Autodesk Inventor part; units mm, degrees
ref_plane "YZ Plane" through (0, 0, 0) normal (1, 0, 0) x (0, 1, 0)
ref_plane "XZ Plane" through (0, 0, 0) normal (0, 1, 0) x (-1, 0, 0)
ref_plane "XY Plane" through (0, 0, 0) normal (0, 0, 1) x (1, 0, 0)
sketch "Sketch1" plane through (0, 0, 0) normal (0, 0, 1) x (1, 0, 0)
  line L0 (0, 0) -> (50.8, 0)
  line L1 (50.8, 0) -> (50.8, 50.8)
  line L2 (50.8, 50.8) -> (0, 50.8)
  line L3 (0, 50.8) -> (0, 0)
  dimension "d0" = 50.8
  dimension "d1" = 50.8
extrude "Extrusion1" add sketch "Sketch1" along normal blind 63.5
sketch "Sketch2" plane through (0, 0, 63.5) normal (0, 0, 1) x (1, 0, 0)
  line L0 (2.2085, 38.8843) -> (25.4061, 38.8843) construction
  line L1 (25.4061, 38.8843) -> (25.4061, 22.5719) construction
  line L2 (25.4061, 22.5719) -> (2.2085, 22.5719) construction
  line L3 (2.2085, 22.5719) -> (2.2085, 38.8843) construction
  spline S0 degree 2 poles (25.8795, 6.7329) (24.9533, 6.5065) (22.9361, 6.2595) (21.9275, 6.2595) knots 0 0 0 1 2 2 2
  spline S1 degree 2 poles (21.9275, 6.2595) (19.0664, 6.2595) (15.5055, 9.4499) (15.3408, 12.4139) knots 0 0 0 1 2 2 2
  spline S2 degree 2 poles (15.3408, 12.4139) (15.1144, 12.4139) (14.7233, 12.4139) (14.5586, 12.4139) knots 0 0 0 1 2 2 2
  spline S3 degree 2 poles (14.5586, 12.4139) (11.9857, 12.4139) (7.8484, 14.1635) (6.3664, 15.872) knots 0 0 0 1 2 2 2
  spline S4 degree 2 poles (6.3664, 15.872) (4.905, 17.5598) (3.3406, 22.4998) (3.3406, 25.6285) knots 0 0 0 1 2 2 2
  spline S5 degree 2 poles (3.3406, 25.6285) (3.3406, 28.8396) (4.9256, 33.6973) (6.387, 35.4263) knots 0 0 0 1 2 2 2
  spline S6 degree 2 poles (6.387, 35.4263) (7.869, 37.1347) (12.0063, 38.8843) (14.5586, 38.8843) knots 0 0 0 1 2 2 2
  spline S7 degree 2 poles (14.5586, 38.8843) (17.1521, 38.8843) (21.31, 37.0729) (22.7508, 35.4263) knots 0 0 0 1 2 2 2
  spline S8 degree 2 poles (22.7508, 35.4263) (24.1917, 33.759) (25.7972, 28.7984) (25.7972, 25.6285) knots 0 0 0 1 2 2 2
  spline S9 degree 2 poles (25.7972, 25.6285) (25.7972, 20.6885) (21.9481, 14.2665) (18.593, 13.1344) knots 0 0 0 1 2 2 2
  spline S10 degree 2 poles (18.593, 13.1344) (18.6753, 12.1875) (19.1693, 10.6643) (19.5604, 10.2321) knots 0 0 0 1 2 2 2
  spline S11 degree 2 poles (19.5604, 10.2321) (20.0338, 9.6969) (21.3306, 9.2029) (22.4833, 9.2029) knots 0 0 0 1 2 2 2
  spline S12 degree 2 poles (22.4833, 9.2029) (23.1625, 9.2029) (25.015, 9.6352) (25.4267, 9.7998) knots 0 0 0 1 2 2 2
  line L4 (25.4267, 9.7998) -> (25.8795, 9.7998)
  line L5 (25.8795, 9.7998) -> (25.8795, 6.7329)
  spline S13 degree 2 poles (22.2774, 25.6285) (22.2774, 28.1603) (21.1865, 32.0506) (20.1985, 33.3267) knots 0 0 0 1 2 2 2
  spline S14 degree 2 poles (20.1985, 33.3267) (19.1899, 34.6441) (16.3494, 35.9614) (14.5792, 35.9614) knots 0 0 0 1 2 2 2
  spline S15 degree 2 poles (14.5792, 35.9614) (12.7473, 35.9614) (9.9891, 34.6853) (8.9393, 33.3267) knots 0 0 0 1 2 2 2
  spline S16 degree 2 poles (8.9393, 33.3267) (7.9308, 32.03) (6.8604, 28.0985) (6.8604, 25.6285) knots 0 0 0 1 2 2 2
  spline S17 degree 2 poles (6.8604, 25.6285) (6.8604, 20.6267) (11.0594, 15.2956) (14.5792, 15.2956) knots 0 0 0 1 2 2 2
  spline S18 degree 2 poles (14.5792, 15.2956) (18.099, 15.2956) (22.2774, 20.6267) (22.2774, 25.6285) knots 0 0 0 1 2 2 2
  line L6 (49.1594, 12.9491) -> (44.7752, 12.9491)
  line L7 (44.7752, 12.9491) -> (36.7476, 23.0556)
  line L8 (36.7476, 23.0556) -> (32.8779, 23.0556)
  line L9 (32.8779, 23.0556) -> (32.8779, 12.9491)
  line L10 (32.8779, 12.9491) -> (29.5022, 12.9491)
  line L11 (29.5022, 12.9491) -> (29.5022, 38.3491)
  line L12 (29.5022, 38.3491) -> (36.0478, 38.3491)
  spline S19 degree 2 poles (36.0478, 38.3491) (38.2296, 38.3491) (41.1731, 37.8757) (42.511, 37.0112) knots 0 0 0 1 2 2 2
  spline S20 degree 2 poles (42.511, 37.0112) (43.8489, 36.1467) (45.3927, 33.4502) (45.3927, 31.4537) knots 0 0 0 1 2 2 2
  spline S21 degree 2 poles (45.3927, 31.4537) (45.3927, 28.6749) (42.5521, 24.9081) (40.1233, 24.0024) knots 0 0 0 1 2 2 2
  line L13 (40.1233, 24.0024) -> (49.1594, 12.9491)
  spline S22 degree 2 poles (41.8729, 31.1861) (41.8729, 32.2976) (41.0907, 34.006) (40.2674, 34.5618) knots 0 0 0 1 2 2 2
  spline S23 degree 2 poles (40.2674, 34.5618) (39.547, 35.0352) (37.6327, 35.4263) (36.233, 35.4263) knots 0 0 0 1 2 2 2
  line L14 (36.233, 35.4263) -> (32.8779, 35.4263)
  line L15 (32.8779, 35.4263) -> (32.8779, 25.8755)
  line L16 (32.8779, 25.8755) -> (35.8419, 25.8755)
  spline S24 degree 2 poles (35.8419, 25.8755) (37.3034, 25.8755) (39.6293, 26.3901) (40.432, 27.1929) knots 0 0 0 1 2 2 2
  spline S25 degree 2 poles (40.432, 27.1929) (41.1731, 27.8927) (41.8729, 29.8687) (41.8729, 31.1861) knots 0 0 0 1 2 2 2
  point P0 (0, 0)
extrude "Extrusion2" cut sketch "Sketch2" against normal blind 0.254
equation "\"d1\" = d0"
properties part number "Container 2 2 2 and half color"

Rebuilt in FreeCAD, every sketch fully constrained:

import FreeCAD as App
import Part
import Sketcher
Q = App.Units.Quantity


def add_polygon(sketch, points):
    """Adds a closed chain of lines whose ends are joined by coincident constraints."""
    first, n = sketch.GeometryCount, len(points)
    for a, b in zip(points, points[1:] + points[:1]):
        sketch.addGeometry(Part.LineSegment(App.Vector(*a, 0), App.Vector(*b, 0)), False)
    for i in range(n):
        sketch.addConstraint(Sketcher.Constraint("Coincident", first + i, 2, first + (i + 1) % n, 1))

doc = App.newDocument("Part")
body = doc.addObject("PartDesign::Body", "Body")

sketch1 = doc.addObject("Sketcher::SketchObject", "Sketch")
body.addObject(sketch1)
sketch1.AttachmentSupport = (doc.XY_Plane, [""])
sketch1.MapMode = "FlatFace"
add_polygon(sketch1, [(0, 50.8), (0, 0), (50.8, 0), (50.8, 50.8)])
sketch1.addConstraint(Sketcher.Constraint("Vertical", 0))
sketch1.addConstraint(Sketcher.Constraint("Horizontal", 1))
sketch1.addConstraint(Sketcher.Constraint("Vertical", 2))
sketch1.addConstraint(Sketcher.Constraint("Horizontal", 3))
sketch1.addConstraint(Sketcher.Constraint("Coincident", 0, 2, -1, 1))
sketch1.addConstraint(Sketcher.Constraint("Equal", 3, 0))
sketch1.addConstraint(Sketcher.Constraint("DistanceX", 1, 1, 1, 2, Q("2 in")))
pad1 = doc.addObject("PartDesign::Pad", "Pad")
body.addObject(pad1)
pad1.Profile = sketch1
pad1.Length = Q("2.5 in")

sketch2 = doc.addObject("Sketcher::SketchObject", "Sketch001")
body.addObject(sketch2)
sketch2.AttachmentSupport = (doc.XY_Plane, [""])
sketch2.MapMode = "FlatFace"
sketch2.AttachmentOffset = App.Placement(App.Vector(0, 0, 2.5 * 25.4), App.Rotation())
sketch2.addGeometry(Part.BSplineCurve([App.Vector(25.8795, 6.7329, 0), App.Vector(24.9533, 6.5065, 0), App.Vector(22.9361, 6.2595, 0), App.Vector(21.9275, 6.2595, 0)], [3, 1, 3], [0, 1, 2], False, 2, [1, 1, 1, 1], False), False)
sketch2.addGeometry(Part.LineSegment(App.Vector(25.8795, 6.7329, 0), App.Vector(25.8795, 9.7998, 0)), False)
sketch2.addGeometry(Part.LineSegment(App.Vector(25.8795, 9.7998, 0), App.Vector(25.4267, 9.7998, 0)), False)
sketch2.addGeometry(Part.BSplineCurve([App.Vector(22.4833, 9.2029, 0), App.Vector(23.1625, 9.2029, 0), App.Vector(25.015, 9.6352, 0), App.Vector(25.4267, 9.7998, 0)], [3, 1, 3], [0, 1, 2], False, 2, [1, 1, 1, 1], False), False)
sketch2.addGeometry(Part.BSplineCurve([App.Vector(19.5604, 10.2321, 0), App.Vector(20.0338, 9.6969, 0), App.Vector(21.3306, 9.2029, 0), App.Vector(22.4833, 9.2029, 0)], [3, 1, 3], [0, 1, 2], False, 2, [1, 1, 1, 1], False), False)
sketch2.addGeometry(Part.BSplineCurve([App.Vector(18.593, 13.1344, 0), App.Vector(18.6753, 12.1875, 0), App.Vector(19.1693, 10.6643, 0), App.Vector(19.5604, 10.2321, 0)], [3, 1, 3], [0, 1, 2], False, 2, [1, 1, 1, 1], False), False)
sketch2.addGeometry(Part.BSplineCurve([App.Vector(25.7972, 25.6285, 0), App.Vector(25.7972, 20.6885, 0), App.Vector(21.9481, 14.2665, 0), App.Vector(18.593, 13.1344, 0)], [3, 1, 3], [0, 1, 2], False, 2, [1, 1, 1, 1], False), False)
sketch2.addGeometry(Part.BSplineCurve([App.Vector(22.7508, 35.4263, 0), App.Vector(24.1917, 33.759, 0), App.Vector(25.7972, 28.7984, 0), App.Vector(25.7972, 25.6285, 0)], [3, 1, 3], [0, 1, 2], False, 2, [1, 1, 1, 1], False), False)
sketch2.addGeometry(Part.BSplineCurve([App.Vector(14.5586, 38.8843, 0), App.Vector(17.1521, 38.8843, 0), App.Vector(21.31, 37.0729, 0), App.Vector(22.7508, 35.4263, 0)], [3, 1, 3], [0, 1, 2], False, 2, [1, 1, 1, 1], False), False)
sketch2.addGeometry(Part.BSplineCurve([App.Vector(6.387, 35.4263, 0), App.Vector(7.869, 37.1347, 0), App.Vector(12.0063, 38.8843, 0), App.Vector(14.5586, 38.8843, 0)], [3, 1, 3], [0, 1, 2], False, 2, [1, 1, 1, 1], False), False)
sketch2.addGeometry(Part.BSplineCurve([App.Vector(3.3406, 25.6285, 0), App.Vector(3.3406, 28.8396, 0), App.Vector(4.9256, 33.6973, 0), App.Vector(6.387, 35.4263, 0)], [3, 1, 3], [0, 1, 2], False, 2, [1, 1, 1, 1], False), False)
sketch2.addGeometry(Part.BSplineCurve([App.Vector(6.3664, 15.872, 0), App.Vector(4.905, 17.5598, 0), App.Vector(3.3406, 22.4998, 0), App.Vector(3.3406, 25.6285, 0)], [3, 1, 3], [0, 1, 2], False, 2, [1, 1, 1, 1], False), False)
sketch2.addGeometry(Part.BSplineCurve([App.Vector(14.5586, 12.4139, 0), App.Vector(11.9857, 12.4139, 0), App.Vector(7.8484, 14.1635, 0), App.Vector(6.3664, 15.872, 0)], [3, 1, 3], [0, 1, 2], False, 2, [1, 1, 1, 1], False), False)
sketch2.addGeometry(Part.BSplineCurve([App.Vector(15.3408, 12.4139, 0), App.Vector(15.1144, 12.4139, 0), App.Vector(14.7233, 12.4139, 0), App.Vector(14.5586, 12.4139, 0)], [3, 1, 3], [0, 1, 2], False, 2, [1, 1, 1, 1], False), False)
sketch2.addGeometry(Part.BSplineCurve([App.Vector(21.9275, 6.2595, 0), App.Vector(19.0664, 6.2595, 0), App.Vector(15.5055, 9.4499, 0), App.Vector(15.3408, 12.4139, 0)], [3, 1, 3], [0, 1, 2], False, 2, [1, 1, 1, 1], False), False)
sketch2.addGeometry(Part.BSplineCurve([App.Vector(22.2774, 25.6285, 0), App.Vector(22.2774, 28.1603, 0), App.Vector(21.1865, 32.0506, 0), App.Vector(20.1985, 33.3267, 0)], [3, 1, 3], [0, 1, 2], False, 2, [1, 1, 1, 1], False), False)
sketch2.addGeometry(Part.BSplineCurve([App.Vector(14.5792, 15.2956, 0), App.Vector(18.099, 15.2956, 0), App.Vector(22.2774, 20.6267, 0), App.Vector(22.2774, 25.6285, 0)], [3, 1, 3], [0, 1, 2], False, 2, [1, 1, 1, 1], False), False)
sketch2.addGeometry(Part.BSplineCurve([App.Vector(6.8604, 25.6285, 0), App.Vector(6.8604, 20.6267, 0), App.Vector(11.0594, 15.2956, 0), App.Vector(14.5792, 15.2956, 0)], [3, 1, 3], [0, 1, 2], False, 2, [1, 1, 1, 1], False), False)
sketch2.addGeometry(Part.BSplineCurve([App.Vector(8.9393, 33.3267, 0), App.Vector(7.9308, 32.03, 0), App.Vector(6.8604, 28.0985, 0), App.Vector(6.8604, 25.6285, 0)], [3, 1, 3], [0, 1, 2], False, 2, [1, 1, 1, 1], False), False)
sketch2.addGeometry(Part.BSplineCurve([App.Vector(14.5792, 35.9614, 0), App.Vector(12.7473, 35.9614, 0), App.Vector(9.9891, 34.6853, 0), App.Vector(8.9393, 33.3267, 0)], [3, 1, 3], [0, 1, 2], False, 2, [1, 1, 1, 1], False), False)
sketch2.addGeometry(Part.BSplineCurve([App.Vector(20.1985, 33.3267, 0), App.Vector(19.1899, 34.6441, 0), App.Vector(16.3494, 35.9614, 0), App.Vector(14.5792, 35.9614, 0)], [3, 1, 3], [0, 1, 2], False, 2, [1, 1, 1, 1], False), False)
sketch2.addGeometry(Part.LineSegment(App.Vector(44.7752, 12.9491, 0), App.Vector(49.1594, 12.9491, 0)), False)
sketch2.addGeometry(Part.LineSegment(App.Vector(49.1594, 12.9491, 0), App.Vector(40.1233, 24.0024, 0)), False)
sketch2.addGeometry(Part.BSplineCurve([App.Vector(45.3927, 31.4537, 0), App.Vector(45.3927, 28.6749, 0), App.Vector(42.5521, 24.9081, 0), App.Vector(40.1233, 24.0024, 0)], [3, 1, 3], [0, 1, 2], False, 2, [1, 1, 1, 1], False), False)
sketch2.addGeometry(Part.BSplineCurve([App.Vector(42.511, 37.0112, 0), App.Vector(43.8489, 36.1467, 0), App.Vector(45.3927, 33.4502, 0), App.Vector(45.3927, 31.4537, 0)], [3, 1, 3], [0, 1, 2], False, 2, [1, 1, 1, 1], False), False)
sketch2.addGeometry(Part.BSplineCurve([App.Vector(36.0478, 38.3491, 0), App.Vector(38.2296, 38.3491, 0), App.Vector(41.1731, 37.8757, 0), App.Vector(42.511, 37.0112, 0)], [3, 1, 3], [0, 1, 2], False, 2, [1, 1, 1, 1], False), False)
sketch2.addGeometry(Part.LineSegment(App.Vector(36.0478, 38.3491, 0), App.Vector(29.5022, 38.3491, 0)), False)
sketch2.addGeometry(Part.LineSegment(App.Vector(29.5022, 38.3491, 0), App.Vector(29.5022, 12.9491, 0)), False)
sketch2.addGeometry(Part.LineSegment(App.Vector(29.5022, 12.9491, 0), App.Vector(32.8779, 12.9491, 0)), False)
sketch2.addGeometry(Part.LineSegment(App.Vector(32.8779, 12.9491, 0), App.Vector(32.8779, 23.0556, 0)), False)
sketch2.addGeometry(Part.LineSegment(App.Vector(32.8779, 23.0556, 0), App.Vector(36.7476, 23.0556, 0)), False)
sketch2.addGeometry(Part.LineSegment(App.Vector(36.7476, 23.0556, 0), App.Vector(44.7752, 12.9491, 0)), False)
sketch2.addGeometry(Part.BSplineCurve([App.Vector(41.8729, 31.1861, 0), App.Vector(41.8729, 32.2976, 0), App.Vector(41.0907, 34.006, 0), App.Vector(40.2674, 34.5618, 0)], [3, 1, 3], [0, 1, 2], False, 2, [1, 1, 1, 1], False), False)
sketch2.addGeometry(Part.BSplineCurve([App.Vector(40.432, 27.1929, 0), App.Vector(41.1731, 27.8927, 0), App.Vector(41.8729, 29.8687, 0), App.Vector(41.8729, 31.1861, 0)], [3, 1, 3], [0, 1, 2], False, 2, [1, 1, 1, 1], False), False)
sketch2.addGeometry(Part.BSplineCurve([App.Vector(35.8419, 25.8755, 0), App.Vector(37.3034, 25.8755, 0), App.Vector(39.6293, 26.3901, 0), App.Vector(40.432, 27.1929, 0)], [3, 1, 3], [0, 1, 2], False, 2, [1, 1, 1, 1], False), False)
sketch2.addGeometry(Part.LineSegment(App.Vector(35.8419, 25.8755, 0), App.Vector(32.8779, 25.8755, 0)), False)
sketch2.addGeometry(Part.LineSegment(App.Vector(32.8779, 25.8755, 0), App.Vector(32.8779, 35.4263, 0)), False)
sketch2.addGeometry(Part.LineSegment(App.Vector(32.8779, 35.4263, 0), App.Vector(36.233, 35.4263, 0)), False)
sketch2.addGeometry(Part.BSplineCurve([App.Vector(40.2674, 34.5618, 0), App.Vector(39.547, 35.0352, 0), App.Vector(37.6327, 35.4263, 0), App.Vector(36.233, 35.4263, 0)], [3, 1, 3], [0, 1, 2], False, 2, [1, 1, 1, 1], False), False)
sketch2.addConstraint(Sketcher.Constraint("Block", 0))
sketch2.addConstraint(Sketcher.Constraint("Block", 3))
sketch2.addConstraint(Sketcher.Constraint("Block", 4))
sketch2.addConstraint(Sketcher.Constraint("Block", 5))
sketch2.addConstraint(Sketcher.Constraint("Block", 6))
sketch2.addConstraint(Sketcher.Constraint("Block", 7))
sketch2.addConstraint(Sketcher.Constraint("Block", 8))
sketch2.addConstraint(Sketcher.Constraint("Block", 9))
sketch2.addConstraint(Sketcher.Constraint("Block", 10))
sketch2.addConstraint(Sketcher.Constraint("Block", 11))
sketch2.addConstraint(Sketcher.Constraint("Block", 12))
sketch2.addConstraint(Sketcher.Constraint("Block", 13))
sketch2.addConstraint(Sketcher.Constraint("Block", 14))
sketch2.addConstraint(Sketcher.Constraint("Block", 15))
sketch2.addConstraint(Sketcher.Constraint("Block", 16))
sketch2.addConstraint(Sketcher.Constraint("Block", 17))
sketch2.addConstraint(Sketcher.Constraint("Block", 18))
sketch2.addConstraint(Sketcher.Constraint("Block", 19))
sketch2.addConstraint(Sketcher.Constraint("Block", 20))
sketch2.addConstraint(Sketcher.Constraint("Block", 23))
sketch2.addConstraint(Sketcher.Constraint("Block", 24))
sketch2.addConstraint(Sketcher.Constraint("Block", 25))
sketch2.addConstraint(Sketcher.Constraint("Block", 32))
sketch2.addConstraint(Sketcher.Constraint("Block", 33))
sketch2.addConstraint(Sketcher.Constraint("Block", 34))
sketch2.addConstraint(Sketcher.Constraint("Block", 38))
sketch2.addConstraint(Sketcher.Constraint("Coincident", 0, 1, 1, 1))
sketch2.addConstraint(Sketcher.Constraint("Coincident", 1, 2, 2, 1))
sketch2.addConstraint(Sketcher.Constraint("Coincident", 2, 2, 3, 2))
sketch2.addConstraint(Sketcher.Constraint("Coincident", 21, 2, 22, 1))
sketch2.addConstraint(Sketcher.Constraint("Coincident", 22, 2, 23, 2))
sketch2.addConstraint(Sketcher.Constraint("Coincident", 25, 1, 26, 1))
sketch2.addConstraint(Sketcher.Constraint("Coincident", 26, 2, 27, 1))
sketch2.addConstraint(Sketcher.Constraint("Coincident", 27, 2, 28, 1))
sketch2.addConstraint(Sketcher.Constraint("Coincident", 28, 2, 29, 1))
sketch2.addConstraint(Sketcher.Constraint("Coincident", 29, 2, 30, 1))
sketch2.addConstraint(Sketcher.Constraint("Coincident", 30, 2, 31, 1))
sketch2.addConstraint(Sketcher.Constraint("Coincident", 31, 2, 21, 1))
sketch2.addConstraint(Sketcher.Constraint("Coincident", 34, 1, 35, 1))
sketch2.addConstraint(Sketcher.Constraint("Coincident", 35, 2, 36, 1))
sketch2.addConstraint(Sketcher.Constraint("Coincident", 36, 2, 37, 1))
sketch2.addConstraint(Sketcher.Constraint("Coincident", 37, 2, 38, 2))
sketch2.addConstraint(Sketcher.Constraint("Vertical", 1))
sketch2.addConstraint(Sketcher.Constraint("Horizontal", 2))
sketch2.addConstraint(Sketcher.Constraint("Horizontal", 21))
sketch2.addConstraint(Sketcher.Constraint("Horizontal", 26))
sketch2.addConstraint(Sketcher.Constraint("Vertical", 27))
sketch2.addConstraint(Sketcher.Constraint("Horizontal", 28))
sketch2.addConstraint(Sketcher.Constraint("Vertical", 29))
sketch2.addConstraint(Sketcher.Constraint("Horizontal", 30))
sketch2.addConstraint(Sketcher.Constraint("Horizontal", 35))
sketch2.addConstraint(Sketcher.Constraint("Vertical", 36))
sketch2.addConstraint(Sketcher.Constraint("Horizontal", 37))
sketch2.addConstraint(Sketcher.Constraint("Horizontal", 21, 2, 27, 2))
sketch2.addConstraint(Sketcher.Constraint("Vertical", 29, 2, 35, 2))
sketch2.addConstraint(Sketcher.Constraint("DistanceY", 27, 2, 27, 1, Q("1 in")))
sketch2.addConstraint(Sketcher.Constraint("Angle", 31, Q("-51.5399 deg")))
sketch2.addConstraint(Sketcher.Constraint("DistanceX", 21, 1, 21, 2, Q("0.1726 in")))
sketch2.addConstraint(Sketcher.Constraint("DistanceX", 26, 2, 26, 1, Q("0.2577 in")))
sketch2.addConstraint(Sketcher.Constraint("DistanceX", 28, 1, 28, 2, Q("0.1329 in")))
sketch2.addConstraint(Sketcher.Constraint("DistanceY", 29, 1, 29, 2, Q("0.3979 in")))
sketch2.addConstraint(Sketcher.Constraint("DistanceX", 28, 2, 21, 2, Q("0.641 in")))
pocket1 = doc.addObject("PartDesign::Pocket", "Pocket")
body.addObject(pocket1)
pocket1.Profile = sketch2
pocket1.Length = Q("0.01 in")

doc.recompute()
